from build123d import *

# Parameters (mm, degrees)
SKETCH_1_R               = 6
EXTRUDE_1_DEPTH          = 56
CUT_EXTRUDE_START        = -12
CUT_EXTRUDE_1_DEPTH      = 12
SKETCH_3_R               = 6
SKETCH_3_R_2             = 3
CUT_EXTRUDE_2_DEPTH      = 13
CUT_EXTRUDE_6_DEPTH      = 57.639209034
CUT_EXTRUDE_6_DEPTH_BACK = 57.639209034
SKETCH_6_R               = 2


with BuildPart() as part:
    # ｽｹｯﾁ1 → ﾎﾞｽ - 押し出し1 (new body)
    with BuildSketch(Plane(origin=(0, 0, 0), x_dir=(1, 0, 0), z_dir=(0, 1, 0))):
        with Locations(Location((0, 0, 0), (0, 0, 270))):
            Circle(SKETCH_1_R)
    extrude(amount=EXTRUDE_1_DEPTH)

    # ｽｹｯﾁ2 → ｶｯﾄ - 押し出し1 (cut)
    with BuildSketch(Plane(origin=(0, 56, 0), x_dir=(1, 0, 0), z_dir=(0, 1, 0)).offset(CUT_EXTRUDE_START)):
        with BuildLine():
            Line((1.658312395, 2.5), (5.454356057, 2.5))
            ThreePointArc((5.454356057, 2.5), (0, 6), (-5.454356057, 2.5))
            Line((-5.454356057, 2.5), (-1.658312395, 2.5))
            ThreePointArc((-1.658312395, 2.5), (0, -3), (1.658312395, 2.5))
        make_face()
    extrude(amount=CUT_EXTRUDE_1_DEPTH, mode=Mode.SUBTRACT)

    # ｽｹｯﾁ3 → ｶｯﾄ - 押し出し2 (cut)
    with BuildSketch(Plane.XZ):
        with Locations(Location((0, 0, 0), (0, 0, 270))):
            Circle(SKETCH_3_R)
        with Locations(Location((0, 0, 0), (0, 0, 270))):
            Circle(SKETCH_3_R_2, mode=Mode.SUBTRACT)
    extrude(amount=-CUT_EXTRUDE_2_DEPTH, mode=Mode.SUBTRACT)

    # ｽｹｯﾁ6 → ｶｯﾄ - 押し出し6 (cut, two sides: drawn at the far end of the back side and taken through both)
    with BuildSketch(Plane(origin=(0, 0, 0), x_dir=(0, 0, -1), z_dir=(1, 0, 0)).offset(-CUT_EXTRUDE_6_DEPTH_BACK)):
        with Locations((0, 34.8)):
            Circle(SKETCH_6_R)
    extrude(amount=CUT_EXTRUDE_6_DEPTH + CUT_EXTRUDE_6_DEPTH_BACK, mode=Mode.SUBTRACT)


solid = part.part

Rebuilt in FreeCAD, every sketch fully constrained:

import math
import FreeCAD as App
import Part
import Sketcher

V = App.Vector
Q = App.Units.Quantity

doc = App.newDocument("Part")
body = doc.addObject("PartDesign::Body", "Body")

sketch1 = body.newObject("Sketcher::SketchObject", "Sketch")
sketch1.AttachmentSupport = (doc.getObject("XZ_Plane"), [""])
sketch1.MapMode = "FlatFace"
sketch1.addGeometry(Part.Circle(V(0, 0, 0), V(0, 0, 1), 6), False)
sketch1.addConstraint(Sketcher.Constraint("Coincident", 0, 3, -1, 1))
sketch1.addConstraint(Sketcher.Constraint("Diameter", 0, Q("12 mm")))
pad1 = body.newObject("PartDesign::Pad", "Pad")
pad1.Profile = sketch1
pad1.Length = 56
pad1.Reversed = True

sketch2 = body.newObject("Sketcher::SketchObject", "Sketch001")
sketch2.AttachmentSupport = (doc.getObject("XZ_Plane"), [""])
sketch2.MapMode = "FlatFace"
sketch2.AttachmentOffset = App.Placement(V(0, 0, -44), App.Rotation())
sketch2.addGeometry(Part.LineSegment(V(1.7, -2.5, 0), V(5.5, -2.5, 0)), False)
sketch2.addGeometry(Part.ArcOfCircle(Part.Circle(V(0, 0, 0), V(0, 0, 1), 6), math.radians(-155), math.radians(-25)), False)
sketch2.addGeometry(Part.LineSegment(V(-5.5, -2.5, 0), V(-1.7, -2.5, 0)), False)
sketch2.addGeometry(Part.ArcOfCircle(Part.Circle(V(0, 0, 0), V(0, 0, 1), 3), math.radians(-56), math.radians(236)), False)
sketch2.addConstraint(Sketcher.Constraint("Coincident", 0, 2, 1, 2))
sketch2.addConstraint(Sketcher.Constraint("Coincident", 1, 1, 2, 1))
sketch2.addConstraint(Sketcher.Constraint("Coincident", 2, 2, 3, 2))
sketch2.addConstraint(Sketcher.Constraint("Coincident", 3, 1, 0, 1))
sketch2.addConstraint(Sketcher.Constraint("Horizontal", 0))
sketch2.addConstraint(Sketcher.Constraint("Horizontal", 2))
sketch2.addConstraint(Sketcher.Constraint("Coincident", 1, 3, -1, 1))
sketch2.addConstraint(Sketcher.Constraint("Coincident", 3, 3, -1, 1))
sketch2.addConstraint(Sketcher.Constraint("Horizontal", 0, 2, 1, 1))
sketch2.addConstraint(Sketcher.Constraint("Radius", 1, Q("6 mm")))
sketch2.addConstraint(Sketcher.Constraint("Radius", 3, Q("3 mm")))
sketch2.addConstraint(Sketcher.Constraint("DistanceY", 0, 2, -1, 1, Q("2.5 mm")))
pocket1 = body.newObject("PartDesign::Pocket", "Pocket")
pocket1.Profile = sketch2
pocket1.Length = 12

sketch3 = body.newObject("Sketcher::SketchObject", "Sketch002")
sketch3.AttachmentSupport = (doc.getObject("XZ_Plane"), [""])
sketch3.MapMode = "FlatFace"
sketch3.addGeometry(Part.Circle(V(0, 0, 0), V(0, 0, 1), 6), False)
sketch3.addGeometry(Part.Circle(V(0, 0, 0), V(0, 0, 1), 3), False)
sketch3.addConstraint(Sketcher.Constraint("Coincident", 0, 3, -1, 1))
sketch3.addConstraint(Sketcher.Constraint("Coincident", 1, 3, -1, 1))
sketch3.addConstraint(Sketcher.Constraint("Diameter", 0, Q("12 mm")))
sketch3.addConstraint(Sketcher.Constraint("Diameter", 1, Q("6 mm")))
pocket2 = body.newObject("PartDesign::Pocket", "Pocket001")
pocket2.Profile = sketch3
pocket2.Length = 13

sketch4 = body.newObject("Sketcher::SketchObject", "Sketch003")
sketch4.AttachmentSupport = (doc.getObject("YZ_Plane"), [""])
sketch4.MapMode = "FlatFace"
sketch4.addGeometry(Part.Circle(V(34.8, 0, 0), V(0, 0, 1), 2), False)
sketch4.addConstraint(Sketcher.Constraint("PointOnObject", 0, 3, -1))
sketch4.addConstraint(Sketcher.Constraint("Diameter", 0, Q("4 mm")))
sketch4.addConstraint(Sketcher.Constraint("DistanceX", -1, 1, 0, 3, Q("34.8 mm")))
pocket3 = body.newObject("PartDesign::Pocket", "Pocket002")
pocket3.Profile = sketch4
pocket3.Type = "ThroughAll"
pocket3.Midplane = True

doc.recompute()
